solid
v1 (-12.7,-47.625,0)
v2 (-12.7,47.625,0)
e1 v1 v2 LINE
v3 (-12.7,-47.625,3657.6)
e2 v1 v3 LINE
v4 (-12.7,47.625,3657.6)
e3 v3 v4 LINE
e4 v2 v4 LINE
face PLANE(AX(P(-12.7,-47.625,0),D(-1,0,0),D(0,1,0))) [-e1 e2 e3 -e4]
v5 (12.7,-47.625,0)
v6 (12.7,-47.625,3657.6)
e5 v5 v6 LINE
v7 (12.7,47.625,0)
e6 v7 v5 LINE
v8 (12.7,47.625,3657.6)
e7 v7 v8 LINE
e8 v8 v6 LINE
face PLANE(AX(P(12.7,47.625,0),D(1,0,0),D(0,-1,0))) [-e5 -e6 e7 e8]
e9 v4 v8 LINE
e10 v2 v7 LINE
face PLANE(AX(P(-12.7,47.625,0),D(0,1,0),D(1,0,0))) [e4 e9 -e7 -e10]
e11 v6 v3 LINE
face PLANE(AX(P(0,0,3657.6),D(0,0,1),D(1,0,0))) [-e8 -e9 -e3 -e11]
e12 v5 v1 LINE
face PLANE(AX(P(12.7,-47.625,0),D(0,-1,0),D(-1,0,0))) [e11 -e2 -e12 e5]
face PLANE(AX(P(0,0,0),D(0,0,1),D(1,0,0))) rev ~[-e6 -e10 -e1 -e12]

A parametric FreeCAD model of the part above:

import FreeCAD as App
import Part
import Sketcher
from FreeCAD import Vector
Q = App.Units.Quantity

doc = App.newDocument("Part")
body = doc.addObject("PartDesign::Body", "Body")

# Sketch on XY plane
sketch1 = doc.addObject("Sketcher::SketchObject", "Sketch")
body.addObject(sketch1)
sketch1.AttachmentSupport = (doc.XY_Plane, [""])
sketch1.MapMode = "FlatFace"
sketch1.addGeometry(Part.LineSegment(Vector(-12.7, -47.625, 0), Vector(12.7, -47.625, 0)), False)
sketch1.addGeometry(Part.LineSegment(Vector(12.7, -47.625, 0), Vector(12.7, 47.625, 0)), False)
sketch1.addGeometry(Part.LineSegment(Vector(12.7, 47.625, 0), Vector(-12.7, 47.625, 0)), False)
sketch1.addGeometry(Part.LineSegment(Vector(-12.7, 47.625, 0), Vector(-12.7, -47.625, 0)), False)
sketch1.addConstraint(Sketcher.Constraint("Coincident", 0, 2, 1, 1))
sketch1.addConstraint(Sketcher.Constraint("Coincident", 1, 2, 2, 1))
sketch1.addConstraint(Sketcher.Constraint("Coincident", 2, 2, 3, 1))
sketch1.addConstraint(Sketcher.Constraint("Coincident", 3, 2, 0, 1))
sketch1.addConstraint(Sketcher.Constraint("Horizontal", 0))
sketch1.addConstraint(Sketcher.Constraint("Vertical", 1))
sketch1.addConstraint(Sketcher.Constraint("Horizontal", 2))
sketch1.addConstraint(Sketcher.Constraint("Vertical", 3))
sketch1.addConstraint(Sketcher.Constraint("Symmetric", 0, 2, 2, 2, -1, 1))
sketch1.addConstraint(Sketcher.Constraint("DistanceX", 0, 1, 0, 2, Q("1 in")))
sketch1.addConstraint(Sketcher.Constraint("DistanceY", 1, 1, 1, 2, Q("3.75 in")))
pad1 = doc.addObject("PartDesign::Pad", "Pad")
body.addObject(pad1)
pad1.Profile = sketch1
pad1.Length = Q("144 in")

doc.recompute()
